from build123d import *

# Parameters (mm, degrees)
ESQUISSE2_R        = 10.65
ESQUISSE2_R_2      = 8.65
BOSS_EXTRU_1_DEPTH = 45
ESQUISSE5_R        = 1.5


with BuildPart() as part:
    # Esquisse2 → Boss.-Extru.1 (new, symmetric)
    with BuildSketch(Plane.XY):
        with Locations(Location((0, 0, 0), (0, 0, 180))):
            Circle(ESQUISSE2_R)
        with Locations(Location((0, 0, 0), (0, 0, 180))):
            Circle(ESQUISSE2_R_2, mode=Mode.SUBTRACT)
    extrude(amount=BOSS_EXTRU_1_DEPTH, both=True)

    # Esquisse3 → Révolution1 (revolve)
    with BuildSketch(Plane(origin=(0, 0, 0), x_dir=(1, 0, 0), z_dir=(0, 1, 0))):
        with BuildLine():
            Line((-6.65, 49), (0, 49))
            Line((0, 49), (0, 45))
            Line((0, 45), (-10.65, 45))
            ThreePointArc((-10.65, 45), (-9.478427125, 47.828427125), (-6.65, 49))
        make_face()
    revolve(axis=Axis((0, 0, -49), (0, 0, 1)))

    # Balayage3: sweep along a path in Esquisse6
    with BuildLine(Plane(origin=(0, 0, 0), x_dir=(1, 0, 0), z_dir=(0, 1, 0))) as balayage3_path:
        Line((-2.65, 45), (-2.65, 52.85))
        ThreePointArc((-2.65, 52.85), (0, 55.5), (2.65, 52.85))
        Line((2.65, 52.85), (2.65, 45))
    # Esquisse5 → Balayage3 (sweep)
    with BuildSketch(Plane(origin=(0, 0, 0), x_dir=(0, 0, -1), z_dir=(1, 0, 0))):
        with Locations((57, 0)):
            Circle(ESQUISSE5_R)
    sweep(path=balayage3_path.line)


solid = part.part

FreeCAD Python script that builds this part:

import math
import FreeCAD as App
import Part
import Sketcher
from FreeCAD import Vector
Q = App.Units.Quantity

doc = App.newDocument("Part")
params = doc.addObject("Spreadsheet::Sheet", "Params")
for row, (alias, value) in enumerate([
    ("sketch1_diameter", "21.3 mm"),
    ("sketch1_diameter2", "17.3 mm"),
    ("pad1_length", "90 mm"),
    ("sketch2_radius", "4 mm"),
    ("sketch2_height", "4 mm"),
    ("sketch2_width", "6.65 mm"),
    ("revolution_angle", "360 deg"),
    ("sketch3_diameter", "3 mm"),
    ("sketch4_radius", "2.65 mm"),
    ("sketch4_height", "7.85 mm"),
], start=1):
    params.set(f"A{row}", alias)
    params.set(f"B{row}", "=" + value)
    params.setAlias(f"B{row}", alias)

body = doc.addObject("PartDesign::Body", "Body")

sketch1 = body.newObject("Sketcher::SketchObject", "Sketch")
sketch1.AttachmentSupport = (doc.getObject("XY_Plane"), [""])
sketch1.MapMode = "FlatFace"
sketch1.addGeometry(Part.Circle(Vector(0, 0, 0), Vector(0, 0, 1), 10.65), False)
sketch1.addGeometry(Part.Circle(Vector(0, 0, 0), Vector(0, 0, 1), 8.65), False)
sketch1.addConstraint(Sketcher.Constraint("Coincident", 0, 3, -1, 1))
sketch1.addConstraint(Sketcher.Constraint("Coincident", 1, 3, -1, 1))
sketch1.addConstraint(Sketcher.Constraint("Diameter", 0, Q("21.3 mm")))
sketch1.addConstraint(Sketcher.Constraint("Diameter", 1, Q("17.3 mm")))
sketch1.setExpression("Constraints[2]", "Params.sketch1_diameter")
sketch1.setExpression("Constraints[3]", "Params.sketch1_diameter2")
pad1 = body.newObject("PartDesign::Pad", "Pad")
pad1.Profile = sketch1
pad1.setExpression("Length", "Params.pad1_length")
pad1.Midplane = True

sketch2 = body.newObject("Sketcher::SketchObject", "Sketch001")
sketch2.AttachmentSupport = (doc.getObject("XZ_Plane"), [""])
sketch2.MapMode = "FlatFace"
sketch2.addGeometry(Part.LineSegment(Vector(0, -49, 0), Vector(-6.65, -49, 0)), False)
sketch2.addGeometry(Part.ArcOfCircle(Part.Circle(Vector(-6.65, -45, 0), Vector(0, 0, 1), 4), math.radians(180), math.radians(270)), False)
sketch2.addGeometry(Part.LineSegment(Vector(-10.65, -45, 0), Vector(0, -45, 0)), False)
sketch2.addGeometry(Part.LineSegment(Vector(0, -45, 0), Vector(0, -49, 0)), False)
sketch2.addConstraint(Sketcher.Constraint("Tangent", 0, 2, 1, 2))
sketch2.addConstraint(Sketcher.Constraint("Coincident", 1, 1, 2, 1))
sketch2.addConstraint(Sketcher.Constraint("Coincident", 2, 2, 3, 1))
sketch2.addConstraint(Sketcher.Constraint("Coincident", 3, 2, 0, 1))
sketch2.addConstraint(Sketcher.Constraint("Horizontal", 0))
sketch2.addConstraint(Sketcher.Constraint("Horizontal", 2))
sketch2.addConstraint(Sketcher.Constraint("Vertical", 3))
sketch2.addConstraint(Sketcher.Constraint("PointOnObject", 2, 2, -2))
sketch2.addConstraint(Sketcher.Constraint("Radius", 1, Q("4 mm")))
sketch2.addConstraint(Sketcher.Constraint("DistanceY", 3, 2, 3, 1, Q("4 mm")))
sketch2.addConstraint(Sketcher.Constraint("DistanceY", 1, 3, -1, 1, Q("45 mm")))
sketch2.addConstraint(Sketcher.Constraint("DistanceX", 0, 2, 0, 1, Q("6.65 mm")))
sketch2.setExpression("Constraints[8]", "Params.sketch2_radius")
sketch2.setExpression("Constraints[9]", "Params.sketch2_height")
sketch2.setExpression("Constraints[11]", "Params.sketch2_width")
revolution = body.newObject("PartDesign::Revolution", "Revolution")
revolution.Profile = sketch2
revolution.ReferenceAxis = (sketch2, ["V_Axis"])
revolution.setExpression("Angle", "Params.revolution_angle")

sketch3 = body.newObject("Sketcher::SketchObject", "Sketch002")
sketch3.AttachmentSupport = (doc.getObject("YZ_Plane"), [""])
sketch3.MapMode = "FlatFace"
sketch3.addGeometry(Part.Circle(Vector(0, -57, 0), Vector(0, 0, 1), 1.5), False)
sketch3.addConstraint(Sketcher.Constraint("PointOnObject", 0, 3, -2))
sketch3.addConstraint(Sketcher.Constraint("Diameter", 0, Q("3 mm")))
sketch3.addConstraint(Sketcher.Constraint("DistanceY", 0, 3, -1, 1, Q("57 mm")))
sketch3.setExpression("Constraints[1]", "Params.sketch3_diameter")

sketch4 = body.newObject("Sketcher::SketchObject", "Sketch003")
sketch4.AttachmentSupport = (doc.getObject("XZ_Plane"), [""])
sketch4.MapMode = "FlatFace"
sketch4.addGeometry(Part.LineSegment(Vector(-2.65, -45, 0), Vector(-2.65, -52.85, 0)), False)
sketch4.addGeometry(Part.ArcOfCircle(Part.Circle(Vector(0, -52.85, 0), Vector(0, 0, 1), 2.65), math.radians(180), math.radians(360)), False)
sketch4.addGeometry(Part.LineSegment(Vector(2.65, -52.85, 0), Vector(2.65, -45, 0)), False)
sketch4.addConstraint(Sketcher.Constraint("Tangent", 0, 2, 1, 1))
sketch4.addConstraint(Sketcher.Constraint("Tangent", 1, 2, 2, 1))
sketch4.addConstraint(Sketcher.Constraint("Vertical", 0))
sketch4.addConstraint(Sketcher.Constraint("Vertical", 2))
sketch4.addConstraint(Sketcher.Constraint("Symmetric", 0, 1, 2, 2, -2))
sketch4.addConstraint(Sketcher.Constraint("Radius", 1, Q("2.65 mm")))
sketch4.addConstraint(Sketcher.Constraint("DistanceY", 0, 1, -1, 1, Q("45 mm")))
sketch4.addConstraint(Sketcher.Constraint("DistanceY", 0, 2, 0, 1, Q("7.85 mm")))
sketch4.setExpression("Constraints[5]", "Params.sketch4_radius")
sketch4.setExpression("Constraints[7]", "Params.sketch4_height")
doc.recompute()

additivepipe = body.newObject("PartDesign::AdditivePipe", "AdditivePipe")
additivepipe.Profile = sketch3
additivepipe.Spine = (sketch4, ["Edge1", "Edge2", "Edge3"])

doc.recompute()
